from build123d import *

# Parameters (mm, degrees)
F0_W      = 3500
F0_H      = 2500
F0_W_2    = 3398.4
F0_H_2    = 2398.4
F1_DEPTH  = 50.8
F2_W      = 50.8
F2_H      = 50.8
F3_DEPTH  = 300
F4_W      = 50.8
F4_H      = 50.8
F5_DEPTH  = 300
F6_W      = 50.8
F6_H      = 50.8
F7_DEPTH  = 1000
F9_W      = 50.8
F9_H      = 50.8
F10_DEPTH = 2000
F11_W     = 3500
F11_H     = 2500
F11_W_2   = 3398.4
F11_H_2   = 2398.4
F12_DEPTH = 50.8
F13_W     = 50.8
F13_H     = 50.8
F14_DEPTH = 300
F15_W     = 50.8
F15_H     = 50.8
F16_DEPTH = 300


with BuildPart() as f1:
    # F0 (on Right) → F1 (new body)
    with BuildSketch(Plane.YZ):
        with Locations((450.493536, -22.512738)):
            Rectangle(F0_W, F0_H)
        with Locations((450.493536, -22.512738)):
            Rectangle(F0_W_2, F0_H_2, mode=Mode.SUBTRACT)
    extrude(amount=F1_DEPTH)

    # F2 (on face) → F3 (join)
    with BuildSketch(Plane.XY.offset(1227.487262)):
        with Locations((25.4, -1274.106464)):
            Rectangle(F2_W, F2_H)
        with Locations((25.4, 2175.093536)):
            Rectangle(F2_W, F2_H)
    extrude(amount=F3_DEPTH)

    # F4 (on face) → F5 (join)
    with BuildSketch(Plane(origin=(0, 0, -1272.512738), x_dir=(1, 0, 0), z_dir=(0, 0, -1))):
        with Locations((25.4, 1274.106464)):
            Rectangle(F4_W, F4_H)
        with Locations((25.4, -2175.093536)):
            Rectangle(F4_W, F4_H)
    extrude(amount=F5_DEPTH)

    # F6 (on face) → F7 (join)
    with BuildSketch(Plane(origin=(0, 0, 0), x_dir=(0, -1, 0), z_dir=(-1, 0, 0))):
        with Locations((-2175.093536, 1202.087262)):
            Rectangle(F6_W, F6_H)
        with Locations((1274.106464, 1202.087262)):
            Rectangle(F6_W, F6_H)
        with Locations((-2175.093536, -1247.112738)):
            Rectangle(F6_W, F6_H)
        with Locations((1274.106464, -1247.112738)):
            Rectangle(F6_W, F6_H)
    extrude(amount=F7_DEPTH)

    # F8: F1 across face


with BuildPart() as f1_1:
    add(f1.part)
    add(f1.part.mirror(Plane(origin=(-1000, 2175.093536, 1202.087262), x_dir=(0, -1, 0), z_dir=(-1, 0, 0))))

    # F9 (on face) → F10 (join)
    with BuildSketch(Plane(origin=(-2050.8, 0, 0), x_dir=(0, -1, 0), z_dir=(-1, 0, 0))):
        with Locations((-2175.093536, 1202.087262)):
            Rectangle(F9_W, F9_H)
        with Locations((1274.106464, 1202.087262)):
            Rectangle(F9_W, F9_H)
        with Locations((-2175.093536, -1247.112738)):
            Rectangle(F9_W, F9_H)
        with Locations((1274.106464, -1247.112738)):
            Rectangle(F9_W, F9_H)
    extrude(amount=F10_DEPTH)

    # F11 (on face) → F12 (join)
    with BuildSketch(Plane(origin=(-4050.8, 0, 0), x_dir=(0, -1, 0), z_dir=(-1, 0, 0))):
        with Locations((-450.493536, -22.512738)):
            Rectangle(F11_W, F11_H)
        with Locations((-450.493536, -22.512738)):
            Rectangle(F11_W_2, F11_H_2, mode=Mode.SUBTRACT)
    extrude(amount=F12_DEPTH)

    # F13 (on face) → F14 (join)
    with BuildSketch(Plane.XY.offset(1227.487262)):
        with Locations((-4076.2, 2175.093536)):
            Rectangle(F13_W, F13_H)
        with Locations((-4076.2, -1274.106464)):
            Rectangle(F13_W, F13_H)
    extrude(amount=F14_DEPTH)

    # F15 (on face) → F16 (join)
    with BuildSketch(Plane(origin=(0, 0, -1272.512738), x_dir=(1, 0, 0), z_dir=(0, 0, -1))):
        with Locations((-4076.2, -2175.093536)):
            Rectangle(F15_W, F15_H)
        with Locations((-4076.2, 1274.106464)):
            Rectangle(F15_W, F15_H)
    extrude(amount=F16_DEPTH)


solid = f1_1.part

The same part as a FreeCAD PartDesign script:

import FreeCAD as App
import Part
import Sketcher

V = App.Vector
Q = App.Units.Quantity


def add_polygon(sketch, points):
    """Adds a closed chain of lines whose ends are joined by coincident constraints."""
    first, n = sketch.GeometryCount, len(points)
    for a, b in zip(points, points[1:] + points[:1]):
        sketch.addGeometry(Part.LineSegment(App.Vector(*a, 0), App.Vector(*b, 0)), False)
    for i in range(n):
        sketch.addConstraint(Sketcher.Constraint("Coincident", first + i, 2, first + (i + 1) % n, 1))

doc = App.newDocument("Part")
params = doc.addObject("Spreadsheet::Sheet", "Params")
for row, (alias, value) in enumerate([
    ("sketch1_width", "3500 mm"),
    ("sketch1_height", "2500 mm"),
    ("sketch1_width2", "3398.4 mm"),
    ("sketch1_height2", "2398.4 mm"),
    ("pad1_length", "50.8 mm"),
    ("sketch2_width", "50.8 mm"),
    ("pad2_length", "300 mm"),
    ("sketch3_width", "50.8 mm"),
    ("pad3_length", "300 mm"),
    ("sketch4_width", "50.8 mm"),
    ("pad4_length", "1000 mm"),
    ("sketch5_width", "50.8 mm"),
    ("pad5_length", "2000 mm"),
    ("sketch6_width", "3500 mm"),
    ("sketch6_height", "2500 mm"),
    ("sketch6_width2", "3398.4 mm"),
    ("sketch6_height2", "2398.4 mm"),
    ("pad6_length", "50.8 mm"),
    ("sketch7_width", "50.8 mm"),
    ("pad7_length", "300 mm"),
    ("sketch8_width", "50.8 mm"),
    ("pad8_length", "300 mm"),
], start=1):
    params.set(f"A{row}", alias)
    params.set(f"B{row}", "=" + value)
    params.setAlias(f"B{row}", alias)

body = doc.addObject("PartDesign::Body", "Body")

# Sketch on YZ plane
sketch1 = doc.addObject("Sketcher::SketchObject", "Sketch")
body.addObject(sketch1)
sketch1.AttachmentSupport = (doc.YZ_Plane, [""])
sketch1.MapMode = "FlatFace"
add_polygon(sketch1, [(-1299.506464, 1227.487262), (-1299.506464, -1272.512738), (2200.493536, -1272.512738), (2200.493536, 1227.487262)])  # lines 0-3
add_polygon(sketch1, [(2149.693536, -1221.712738), (-1248.706464, -1221.712738), (-1248.706464, 1176.687262), (2149.693536, 1176.687262)])  # lines 4-7
sketch1.addConstraint(Sketcher.Constraint("Vertical", 0))
sketch1.addConstraint(Sketcher.Constraint("Horizontal", 1))
sketch1.addConstraint(Sketcher.Constraint("Vertical", 2))
sketch1.addConstraint(Sketcher.Constraint("Horizontal", 3))
sketch1.addConstraint(Sketcher.Constraint("Horizontal", 4))
sketch1.addConstraint(Sketcher.Constraint("Vertical", 5))
sketch1.addConstraint(Sketcher.Constraint("Horizontal", 6))
sketch1.addConstraint(Sketcher.Constraint("Vertical", 7))
sketch1.addConstraint(Sketcher.Constraint("DistanceX", 1, 1, 1, 2, Q("3500 mm")))
sketch1.addConstraint(Sketcher.Constraint("DistanceY", 0, 2, 0, 1, Q("2500 mm")))
sketch1.addConstraint(Sketcher.Constraint("DistanceX", 4, 2, 4, 1, Q("3398.4 mm")))
sketch1.addConstraint(Sketcher.Constraint("DistanceY", 5, 1, 5, 2, Q("2398.4 mm")))
sketch1.addConstraint(Sketcher.Constraint("DistanceX", 0, 2, 4, 2, Q("50.8 mm")))
sketch1.addConstraint(Sketcher.Constraint("DistanceY", 0, 2, 4, 2, Q("50.8 mm")))
sketch1.addConstraint(Sketcher.Constraint("DistanceY", 0, 2, -1, 1, Q("1272.512738 mm")))
sketch1.addConstraint(Sketcher.Constraint("DistanceX", 0, 2, -1, 1, Q("1299.506464 mm")))
sketch1.setExpression("Constraints[16]", "Params.sketch1_width")
sketch1.setExpression("Constraints[17]", "Params.sketch1_height")
sketch1.setExpression("Constraints[18]", "Params.sketch1_width2")
sketch1.setExpression("Constraints[19]", "Params.sketch1_height2")
pad1 = doc.addObject("PartDesign::Pad", "Pad")
body.addObject(pad1)
pad1.Profile = sketch1
pad1.setExpression("Length", "Params.pad1_length")

# Sketch on XY plane
sketch2 = doc.addObject("Sketcher::SketchObject", "Sketch001")
body.addObject(sketch2)
sketch2.AttachmentSupport = (doc.XY_Plane, [""])
sketch2.MapMode = "FlatFace"
sketch2.AttachmentOffset = App.Placement(V(0, 0, 1227.487262), App.Rotation())
add_polygon(sketch2, [(0, -1248.706464), (0, -1299.506464), (50.8, -1299.506464), (50.8, -1248.706464)])  # lines 0-3
add_polygon(sketch2, [(0, 2200.493536), (0, 2149.693536), (50.8, 2149.693536), (50.8, 2200.493536)])  # lines 4-7
sketch2.addConstraint(Sketcher.Constraint("Vertical", 0))
sketch2.addConstraint(Sketcher.Constraint("Horizontal", 1))
sketch2.addConstraint(Sketcher.Constraint("Vertical", 2))
sketch2.addConstraint(Sketcher.Constraint("Horizontal", 3))
sketch2.addConstraint(Sketcher.Constraint("Vertical", 4))
sketch2.addConstraint(Sketcher.Constraint("Horizontal", 5))
sketch2.addConstraint(Sketcher.Constraint("Vertical", 6))
sketch2.addConstraint(Sketcher.Constraint("Horizontal", 7))
sketch2.addConstraint(Sketcher.Constraint("PointOnObject", 0, 2, -2))
sketch2.addConstraint(Sketcher.Constraint("PointOnObject", 4, 2, -2))
sketch2.addConstraint(Sketcher.Constraint("Vertical", 2, 2, 5, 2))
sketch2.addConstraint(Sketcher.Constraint("Equal", 7, 0))
sketch2.addConstraint(Sketcher.Constraint("Equal", 2, 4))
sketch2.addConstraint(Sketcher.Constraint("DistanceX", 1, 1, 1, 2, Q("50.8 mm")))
sketch2.addConstraint(Sketcher.Constraint("DistanceY", 1, 2, 6, 2, Q("3500 mm")))
sketch2.addConstraint(Sketcher.Constraint("DistanceY", 0, 2, -1, 1, Q("1299.506464 mm")))
sketch2.setExpression("Constraints[21]", "Params.sketch2_width")
pad2 = doc.addObject("PartDesign::Pad", "Pad001")
body.addObject(pad2)
pad2.Profile = sketch2
pad2.setExpression("Length", "Params.pad2_length")

# Sketch on XY plane
sketch3 = doc.addObject("Sketcher::SketchObject", "Sketch002")
body.addObject(sketch3)
sketch3.AttachmentSupport = (doc.XY_Plane, [""])
sketch3.MapMode = "FlatFace"
sketch3.AttachmentOffset = App.Placement(V(0, 0, -1272.512738), App.Rotation())
add_polygon(sketch3, [(0, -1299.506464), (0, -1248.706464), (50.8, -1248.706464), (50.8, -1299.506464)])  # lines 0-3
add_polygon(sketch3, [(0, 2149.693536), (0, 2200.493536), (50.8, 2200.493536), (50.8, 2149.693536)])  # lines 4-7
sketch3.addConstraint(Sketcher.Constraint("Vertical", 0))
sketch3.addConstraint(Sketcher.Constraint("Horizontal", 1))
sketch3.addConstraint(Sketcher.Constraint("Vertical", 2))
sketch3.addConstraint(Sketcher.Constraint("Horizontal", 3))
sketch3.addConstraint(Sketcher.Constraint("Vertical", 4))
sketch3.addConstraint(Sketcher.Constraint("Horizontal", 5))
sketch3.addConstraint(Sketcher.Constraint("Vertical", 6))
sketch3.addConstraint(Sketcher.Constraint("Horizontal", 7))
sketch3.addConstraint(Sketcher.Constraint("PointOnObject", 0, 2, -2))
sketch3.addConstraint(Sketcher.Constraint("PointOnObject", 4, 2, -2))
sketch3.addConstraint(Sketcher.Constraint("Vertical", 2, 2, 5, 2))
sketch3.addConstraint(Sketcher.Constraint("Equal", 7, 0))
sketch3.addConstraint(Sketcher.Constraint("Equal", 2, 4))
sketch3.addConstraint(Sketcher.Constraint("DistanceX", 1, 1, 1, 2, Q("50.8 mm")))
sketch3.addConstraint(Sketcher.Constraint("DistanceY", 3, 2, 4, 2, Q("3500 mm")))
sketch3.addConstraint(Sketcher.Constraint("DistanceY", 0, 2, -1, 1, Q("1248.706464 mm")))
sketch3.setExpression("Constraints[21]", "Params.sketch3_width")
pad3 = doc.addObject("PartDesign::Pad", "Pad002")
body.addObject(pad3)
pad3.Profile = sketch3
pad3.setExpression("Length", "Params.pad3_length")
pad3.Reversed = True

# Sketch on YZ plane
sketch4 = doc.addObject("Sketcher::SketchObject", "Sketch003")
body.addObject(sketch4)
sketch4.AttachmentSupport = (doc.YZ_Plane, [""])
sketch4.MapMode = "FlatFace"
add_polygon(sketch4, [(2200.493536, 1227.487262), (2200.493536, 1176.687262), (2149.693536, 1176.687262), (2149.693536, 1227.487262)])  # lines 0-3
add_polygon(sketch4, [(-1248.706464, 1227.487262), (-1248.706464, 1176.687262), (-1299.506464, 1176.687262), (-1299.506464, 1227.487262)])  # lines 4-7
add_polygon(sketch4, [(2200.493536, -1221.712738), (2200.493536, -1272.512738), (2149.693536, -1272.512738), (2149.693536, -1221.712738)])  # lines 8-11
add_polygon(sketch4, [(-1248.706464, -1221.712738), (-1248.706464, -1272.512738), (-1299.506464, -1272.512738), (-1299.506464, -1221.712738)])  # lines 12-15
sketch4.addConstraint(Sketcher.Constraint("Vertical", 0))
sketch4.addConstraint(Sketcher.Constraint("Horizontal", 1))
sketch4.addConstraint(Sketcher.Constraint("Vertical", 2))
sketch4.addConstraint(Sketcher.Constraint("Horizontal", 3))
sketch4.addConstraint(Sketcher.Constraint("Vertical", 4))
sketch4.addConstraint(Sketcher.Constraint("Horizontal", 5))
sketch4.addConstraint(Sketcher.Constraint("Vertical", 6))
sketch4.addConstraint(Sketcher.Constraint("Horizontal", 7))
sketch4.addConstraint(Sketcher.Constraint("Vertical", 8))
sketch4.addConstraint(Sketcher.Constraint("Horizontal", 9))
sketch4.addConstraint(Sketcher.Constraint("Vertical", 10))
sketch4.addConstraint(Sketcher.Constraint("Horizontal", 11))
sketch4.addConstraint(Sketcher.Constraint("Vertical", 12))
sketch4.addConstraint(Sketcher.Constraint("Horizontal", 13))
sketch4.addConstraint(Sketcher.Constraint("Vertical", 14))
sketch4.addConstraint(Sketcher.Constraint("Horizontal", 15))
sketch4.addConstraint(Sketcher.Constraint("Horizontal", 1, 2, 4, 2))
sketch4.addConstraint(Sketcher.Constraint("Horizontal", 3, 2, 6, 2))
sketch4.addConstraint(Sketcher.Constraint("Horizontal", 9, 2, 12, 2))
sketch4.addConstraint(Sketcher.Constraint("Horizontal", 11, 2, 14, 2))
sketch4.addConstraint(Sketcher.Constraint("Vertical", 3, 2, 8, 2))
sketch4.addConstraint(Sketcher.Constraint("Vertical", 2, 2, 9, 2))
sketch4.addConstraint(Sketcher.Constraint("Vertical", 7, 2, 12, 2))
sketch4.addConstraint(Sketcher.Constraint("Vertical", 6, 2, 13, 2))
sketch4.addConstraint(Sketcher.Constraint("Equal", 3, 5))
sketch4.addConstraint(Sketcher.Constraint("Equal", 15, 0))
sketch4.addConstraint(Sketcher.Constraint("Equal", 6, 8))
sketch4.addConstraint(Sketcher.Constraint("DistanceX", 1, 2, 1, 1, Q("50.8 mm")))
sketch4.addConstraint(Sketcher.Constraint("DistanceX", 5, 2, 0, 2, Q("3500 mm")))
sketch4.addConstraint(Sketcher.Constraint("DistanceY", 8, 2, 3, 2, Q("2500 mm")))
sketch4.addConstraint(Sketcher.Constraint("DistanceY", -1, 1, 0, 2, Q("1176.687262 mm")))
sketch4.addConstraint(Sketcher.Constraint("DistanceX", -1, 1, 0, 2, Q("2200.493536 mm")))
sketch4.setExpression("Constraints[43]", "Params.sketch4_width")
pad4 = doc.addObject("PartDesign::Pad", "Pad003")
body.addObject(pad4)
pad4.Profile = sketch4
pad4.setExpression("Length", "Params.pad4_length")
pad4.Reversed = True
body2 = doc.addObject("PartDesign::Body", "Body001")
doc.recompute()

body2.BaseFeature = body
doc.recompute()

mirroring = doc.addObject("Part::Mirroring", "Mirroring")
mirroring.Source = body
mirroring.Base = V(-1000, 2175.093536, 1202.087262)
mirroring.Normal = V(-1, 0, 0)
body3 = doc.addObject("PartDesign::Body", "Body002")
body3.BaseFeature = mirroring
boolean = doc.addObject("PartDesign::Boolean", "Boolean")
body2.addObject(boolean)
boolean.Type = "Fuse"
boolean.addObjects([body3])
doc.recompute()

# Sketch on YZ plane
sketch5 = doc.addObject("Sketcher::SketchObject", "Sketch004")
body2.addObject(sketch5)
sketch5.AttachmentSupport = (doc.getObject("YZ_Plane001"), [""])
sketch5.MapMode = "FlatFace"
sketch5.AttachmentOffset = App.Placement(V(0, 0, -2050.8), App.Rotation())
add_polygon(sketch5, [(2200.493536, 1227.487262), (2200.493536, 1176.687262), (2149.693536, 1176.687262), (2149.693536, 1227.487262)])  # lines 0-3
add_polygon(sketch5, [(-1248.706464, 1227.487262), (-1248.706464, 1176.687262), (-1299.506464, 1176.687262), (-1299.506464, 1227.487262)])  # lines 4-7
add_polygon(sketch5, [(2200.493536, -1221.712738), (2200.493536, -1272.512738), (2149.693536, -1272.512738), (2149.693536, -1221.712738)])  # lines 8-11
add_polygon(sketch5, [(-1248.706464, -1221.712738), (-1248.706464, -1272.512738), (-1299.506464, -1272.512738), (-1299.506464, -1221.712738)])  # lines 12-15
sketch5.addConstraint(Sketcher.Constraint("Vertical", 0))
sketch5.addConstraint(Sketcher.Constraint("Horizontal", 1))
sketch5.addConstraint(Sketcher.Constraint("Vertical", 2))
sketch5.addConstraint(Sketcher.Constraint("Horizontal", 3))
sketch5.addConstraint(Sketcher.Constraint("Vertical", 4))
sketch5.addConstraint(Sketcher.Constraint("Horizontal", 5))
sketch5.addConstraint(Sketcher.Constraint("Vertical", 6))
sketch5.addConstraint(Sketcher.Constraint("Horizontal", 7))
sketch5.addConstraint(Sketcher.Constraint("Vertical", 8))
sketch5.addConstraint(Sketcher.Constraint("Horizontal", 9))
sketch5.addConstraint(Sketcher.Constraint("Vertical", 10))
sketch5.addConstraint(Sketcher.Constraint("Horizontal", 11))
sketch5.addConstraint(Sketcher.Constraint("Vertical", 12))
sketch5.addConstraint(Sketcher.Constraint("Horizontal", 13))
sketch5.addConstraint(Sketcher.Constraint("Vertical", 14))
sketch5.addConstraint(Sketcher.Constraint("Horizontal", 15))
sketch5.addConstraint(Sketcher.Constraint("Horizontal", 1, 2, 4, 2))
sketch5.addConstraint(Sketcher.Constraint("Horizontal", 3, 2, 6, 2))
sketch5.addConstraint(Sketcher.Constraint("Horizontal", 9, 2, 12, 2))
sketch5.addConstraint(Sketcher.Constraint("Horizontal", 11, 2, 14, 2))
sketch5.addConstraint(Sketcher.Constraint("Vertical", 3, 2, 8, 2))
sketch5.addConstraint(Sketcher.Constraint("Vertical", 2, 2, 9, 2))
sketch5.addConstraint(Sketcher.Constraint("Vertical", 7, 2, 12, 2))
sketch5.addConstraint(Sketcher.Constraint("Vertical", 6, 2, 13, 2))
sketch5.addConstraint(Sketcher.Constraint("Equal", 3, 5))
sketch5.addConstraint(Sketcher.Constraint("Equal", 15, 0))
sketch5.addConstraint(Sketcher.Constraint("Equal", 6, 8))
sketch5.addConstraint(Sketcher.Constraint("DistanceX", 1, 2, 1, 1, Q("50.8 mm")))
sketch5.addConstraint(Sketcher.Constraint("DistanceX", 5, 2, 0, 2, Q("3500 mm")))
sketch5.addConstraint(Sketcher.Constraint("DistanceY", 8, 2, 3, 2, Q("2500 mm")))
sketch5.addConstraint(Sketcher.Constraint("DistanceY", -1, 1, 0, 2, Q("1176.687262 mm")))
sketch5.addConstraint(Sketcher.Constraint("DistanceX", -1, 1, 0, 2, Q("2200.493536 mm")))
sketch5.setExpression("Constraints[43]", "Params.sketch5_width")
pad5 = doc.addObject("PartDesign::Pad", "Pad004")
body2.addObject(pad5)
pad5.Profile = sketch5
pad5.setExpression("Length", "Params.pad5_length")
pad5.Reversed = True

# Sketch on YZ plane
sketch6 = doc.addObject("Sketcher::SketchObject", "Sketch005")
body2.addObject(sketch6)
sketch6.AttachmentSupport = (doc.getObject("YZ_Plane001"), [""])
sketch6.MapMode = "FlatFace"
sketch6.AttachmentOffset = App.Placement(V(0, 0, -4050.8), App.Rotation())
add_polygon(sketch6, [(2200.493536, 1227.487262), (2200.493536, -1272.512738), (-1299.506464, -1272.512738), (-1299.506464, 1227.487262)])  # lines 0-3
add_polygon(sketch6, [(-1248.706464, -1221.712738), (2149.693536, -1221.712738), (2149.693536, 1176.687262), (-1248.706464, 1176.687262)])  # lines 4-7
sketch6.addConstraint(Sketcher.Constraint("Vertical", 0))
sketch6.addConstraint(Sketcher.Constraint("Horizontal", 1))
sketch6.addConstraint(Sketcher.Constraint("Vertical", 2))
sketch6.addConstraint(Sketcher.Constraint("Horizontal", 3))
sketch6.addConstraint(Sketcher.Constraint("Horizontal", 4))
sketch6.addConstraint(Sketcher.Constraint("Vertical", 5))
sketch6.addConstraint(Sketcher.Constraint("Horizontal", 6))
sketch6.addConstraint(Sketcher.Constraint("Vertical", 7))
sketch6.addConstraint(Sketcher.Constraint("DistanceX", 1, 2, 1, 1, Q("3500 mm")))
sketch6.addConstraint(Sketcher.Constraint("DistanceY", 0, 2, 0, 1, Q("2500 mm")))
sketch6.addConstraint(Sketcher.Constraint("DistanceX", 4, 1, 4, 2, Q("3398.4 mm")))
sketch6.addConstraint(Sketcher.Constraint("DistanceY", 5, 1, 5, 2, Q("2398.4 mm")))
sketch6.addConstraint(Sketcher.Constraint("DistanceX", 4, 2, 0, 2, Q("50.8 mm")))
sketch6.addConstraint(Sketcher.Constraint("DistanceY", 0, 2, 4, 2, Q("50.8 mm")))
sketch6.addConstraint(Sketcher.Constraint("DistanceY", 0, 2, -1, 1, Q("1272.512738 mm")))
sketch6.addConstraint(Sketcher.Constraint("DistanceX", -1, 1, 0, 2, Q("2200.493536 mm")))
sketch6.setExpression("Constraints[16]", "Params.sketch6_width")
sketch6.setExpression("Constraints[17]", "Params.sketch6_height")
sketch6.setExpression("Constraints[18]", "Params.sketch6_width2")
sketch6.setExpression("Constraints[19]", "Params.sketch6_height2")
pad6 = doc.addObject("PartDesign::Pad", "Pad005")
body2.addObject(pad6)
pad6.Profile = sketch6
pad6.setExpression("Length", "Params.pad6_length")
pad6.Reversed = True

# Sketch on XY plane
sketch7 = doc.addObject("Sketcher::SketchObject", "Sketch006")
body2.addObject(sketch7)
sketch7.AttachmentSupport = (doc.getObject("XY_Plane001"), [""])
sketch7.MapMode = "FlatFace"
sketch7.AttachmentOffset = App.Placement(V(0, 0, 1227.487262), App.Rotation())
add_polygon(sketch7, [(-4101.6, 2200.493536), (-4101.6, 2149.693536), (-4050.8, 2149.693536), (-4050.8, 2200.493536)])  # lines 0-3
add_polygon(sketch7, [(-4101.6, -1248.706464), (-4101.6, -1299.506464), (-4050.8, -1299.506464), (-4050.8, -1248.706464)])  # lines 4-7
sketch7.addConstraint(Sketcher.Constraint("Vertical", 0))
sketch7.addConstraint(Sketcher.Constraint("Horizontal", 1))
sketch7.addConstraint(Sketcher.Constraint("Vertical", 2))
sketch7.addConstraint(Sketcher.Constraint("Horizontal", 3))
sketch7.addConstraint(Sketcher.Constraint("Vertical", 4))
sketch7.addConstraint(Sketcher.Constraint("Horizontal", 5))
sketch7.addConstraint(Sketcher.Constraint("Vertical", 6))
sketch7.addConstraint(Sketcher.Constraint("Horizontal", 7))
sketch7.addConstraint(Sketcher.Constraint("Vertical", 3, 2, 4, 2))
sketch7.addConstraint(Sketcher.Constraint("Vertical", 2, 2, 5, 2))
sketch7.addConstraint(Sketcher.Constraint("Equal", 7, 0))
sketch7.addConstraint(Sketcher.Constraint("Equal", 2, 4))
sketch7.addConstraint(Sketcher.Constraint("DistanceX", 1, 1, 1, 2, Q("50.8 mm")))
sketch7.addConstraint(Sketcher.Constraint("DistanceY", 4, 2, 3, 2, Q("3500 mm")))
sketch7.addConstraint(Sketcher.Constraint("DistanceX", 0, 2, -1, 1, Q("4101.6 mm")))
sketch7.addConstraint(Sketcher.Constraint("DistanceY", -1, 1, 0, 2, Q("2149.693536 mm")))
sketch7.setExpression("Constraints[20]", "Params.sketch7_width")
pad7 = doc.addObject("PartDesign::Pad", "Pad006")
body2.addObject(pad7)
pad7.Profile = sketch7
pad7.setExpression("Length", "Params.pad7_length")

# Sketch on XY plane
sketch8 = doc.addObject("Sketcher::SketchObject", "Sketch007")
body2.addObject(sketch8)
sketch8.AttachmentSupport = (doc.getObject("XY_Plane001"), [""])
sketch8.MapMode = "FlatFace"
sketch8.AttachmentOffset = App.Placement(V(0, 0, -1272.512738), App.Rotation())
add_polygon(sketch8, [(-4101.6, 2149.693536), (-4101.6, 2200.493536), (-4050.8, 2200.493536), (-4050.8, 2149.693536)])  # lines 0-3
add_polygon(sketch8, [(-4101.6, -1299.506464), (-4101.6, -1248.706464), (-4050.8, -1248.706464), (-4050.8, -1299.506464)])  # lines 4-7
sketch8.addConstraint(Sketcher.Constraint("Vertical", 0))
sketch8.addConstraint(Sketcher.Constraint("Horizontal", 1))
sketch8.addConstraint(Sketcher.Constraint("Vertical", 2))
sketch8.addConstraint(Sketcher.Constraint("Horizontal", 3))
sketch8.addConstraint(Sketcher.Constraint("Vertical", 4))
sketch8.addConstraint(Sketcher.Constraint("Horizontal", 5))
sketch8.addConstraint(Sketcher.Constraint("Vertical", 6))
sketch8.addConstraint(Sketcher.Constraint("Horizontal", 7))
sketch8.addConstraint(Sketcher.Constraint("Vertical", 3, 2, 4, 2))
sketch8.addConstraint(Sketcher.Constraint("Vertical", 2, 2, 5, 2))
sketch8.addConstraint(Sketcher.Constraint("Equal", 7, 0))
sketch8.addConstraint(Sketcher.Constraint("Equal", 2, 4))
sketch8.addConstraint(Sketcher.Constraint("DistanceX", 1, 1, 1, 2, Q("50.8 mm")))
sketch8.addConstraint(Sketcher.Constraint("DistanceY", 6, 2, 1, 2, Q("3500 mm")))
sketch8.addConstraint(Sketcher.Constraint("DistanceX", 0, 2, -1, 1, Q("4101.6 mm")))
sketch8.addConstraint(Sketcher.Constraint("DistanceY", -1, 1, 0, 2, Q("2200.493536 mm")))
sketch8.setExpression("Constraints[20]", "Params.sketch8_width")
pad8 = doc.addObject("PartDesign::Pad", "Pad007")
body2.addObject(pad8)
pad8.Profile = sketch8
pad8.setExpression("Length", "Params.pad8_length")
pad8.Reversed = True
mirroring.Visibility = False

doc.recompute()
